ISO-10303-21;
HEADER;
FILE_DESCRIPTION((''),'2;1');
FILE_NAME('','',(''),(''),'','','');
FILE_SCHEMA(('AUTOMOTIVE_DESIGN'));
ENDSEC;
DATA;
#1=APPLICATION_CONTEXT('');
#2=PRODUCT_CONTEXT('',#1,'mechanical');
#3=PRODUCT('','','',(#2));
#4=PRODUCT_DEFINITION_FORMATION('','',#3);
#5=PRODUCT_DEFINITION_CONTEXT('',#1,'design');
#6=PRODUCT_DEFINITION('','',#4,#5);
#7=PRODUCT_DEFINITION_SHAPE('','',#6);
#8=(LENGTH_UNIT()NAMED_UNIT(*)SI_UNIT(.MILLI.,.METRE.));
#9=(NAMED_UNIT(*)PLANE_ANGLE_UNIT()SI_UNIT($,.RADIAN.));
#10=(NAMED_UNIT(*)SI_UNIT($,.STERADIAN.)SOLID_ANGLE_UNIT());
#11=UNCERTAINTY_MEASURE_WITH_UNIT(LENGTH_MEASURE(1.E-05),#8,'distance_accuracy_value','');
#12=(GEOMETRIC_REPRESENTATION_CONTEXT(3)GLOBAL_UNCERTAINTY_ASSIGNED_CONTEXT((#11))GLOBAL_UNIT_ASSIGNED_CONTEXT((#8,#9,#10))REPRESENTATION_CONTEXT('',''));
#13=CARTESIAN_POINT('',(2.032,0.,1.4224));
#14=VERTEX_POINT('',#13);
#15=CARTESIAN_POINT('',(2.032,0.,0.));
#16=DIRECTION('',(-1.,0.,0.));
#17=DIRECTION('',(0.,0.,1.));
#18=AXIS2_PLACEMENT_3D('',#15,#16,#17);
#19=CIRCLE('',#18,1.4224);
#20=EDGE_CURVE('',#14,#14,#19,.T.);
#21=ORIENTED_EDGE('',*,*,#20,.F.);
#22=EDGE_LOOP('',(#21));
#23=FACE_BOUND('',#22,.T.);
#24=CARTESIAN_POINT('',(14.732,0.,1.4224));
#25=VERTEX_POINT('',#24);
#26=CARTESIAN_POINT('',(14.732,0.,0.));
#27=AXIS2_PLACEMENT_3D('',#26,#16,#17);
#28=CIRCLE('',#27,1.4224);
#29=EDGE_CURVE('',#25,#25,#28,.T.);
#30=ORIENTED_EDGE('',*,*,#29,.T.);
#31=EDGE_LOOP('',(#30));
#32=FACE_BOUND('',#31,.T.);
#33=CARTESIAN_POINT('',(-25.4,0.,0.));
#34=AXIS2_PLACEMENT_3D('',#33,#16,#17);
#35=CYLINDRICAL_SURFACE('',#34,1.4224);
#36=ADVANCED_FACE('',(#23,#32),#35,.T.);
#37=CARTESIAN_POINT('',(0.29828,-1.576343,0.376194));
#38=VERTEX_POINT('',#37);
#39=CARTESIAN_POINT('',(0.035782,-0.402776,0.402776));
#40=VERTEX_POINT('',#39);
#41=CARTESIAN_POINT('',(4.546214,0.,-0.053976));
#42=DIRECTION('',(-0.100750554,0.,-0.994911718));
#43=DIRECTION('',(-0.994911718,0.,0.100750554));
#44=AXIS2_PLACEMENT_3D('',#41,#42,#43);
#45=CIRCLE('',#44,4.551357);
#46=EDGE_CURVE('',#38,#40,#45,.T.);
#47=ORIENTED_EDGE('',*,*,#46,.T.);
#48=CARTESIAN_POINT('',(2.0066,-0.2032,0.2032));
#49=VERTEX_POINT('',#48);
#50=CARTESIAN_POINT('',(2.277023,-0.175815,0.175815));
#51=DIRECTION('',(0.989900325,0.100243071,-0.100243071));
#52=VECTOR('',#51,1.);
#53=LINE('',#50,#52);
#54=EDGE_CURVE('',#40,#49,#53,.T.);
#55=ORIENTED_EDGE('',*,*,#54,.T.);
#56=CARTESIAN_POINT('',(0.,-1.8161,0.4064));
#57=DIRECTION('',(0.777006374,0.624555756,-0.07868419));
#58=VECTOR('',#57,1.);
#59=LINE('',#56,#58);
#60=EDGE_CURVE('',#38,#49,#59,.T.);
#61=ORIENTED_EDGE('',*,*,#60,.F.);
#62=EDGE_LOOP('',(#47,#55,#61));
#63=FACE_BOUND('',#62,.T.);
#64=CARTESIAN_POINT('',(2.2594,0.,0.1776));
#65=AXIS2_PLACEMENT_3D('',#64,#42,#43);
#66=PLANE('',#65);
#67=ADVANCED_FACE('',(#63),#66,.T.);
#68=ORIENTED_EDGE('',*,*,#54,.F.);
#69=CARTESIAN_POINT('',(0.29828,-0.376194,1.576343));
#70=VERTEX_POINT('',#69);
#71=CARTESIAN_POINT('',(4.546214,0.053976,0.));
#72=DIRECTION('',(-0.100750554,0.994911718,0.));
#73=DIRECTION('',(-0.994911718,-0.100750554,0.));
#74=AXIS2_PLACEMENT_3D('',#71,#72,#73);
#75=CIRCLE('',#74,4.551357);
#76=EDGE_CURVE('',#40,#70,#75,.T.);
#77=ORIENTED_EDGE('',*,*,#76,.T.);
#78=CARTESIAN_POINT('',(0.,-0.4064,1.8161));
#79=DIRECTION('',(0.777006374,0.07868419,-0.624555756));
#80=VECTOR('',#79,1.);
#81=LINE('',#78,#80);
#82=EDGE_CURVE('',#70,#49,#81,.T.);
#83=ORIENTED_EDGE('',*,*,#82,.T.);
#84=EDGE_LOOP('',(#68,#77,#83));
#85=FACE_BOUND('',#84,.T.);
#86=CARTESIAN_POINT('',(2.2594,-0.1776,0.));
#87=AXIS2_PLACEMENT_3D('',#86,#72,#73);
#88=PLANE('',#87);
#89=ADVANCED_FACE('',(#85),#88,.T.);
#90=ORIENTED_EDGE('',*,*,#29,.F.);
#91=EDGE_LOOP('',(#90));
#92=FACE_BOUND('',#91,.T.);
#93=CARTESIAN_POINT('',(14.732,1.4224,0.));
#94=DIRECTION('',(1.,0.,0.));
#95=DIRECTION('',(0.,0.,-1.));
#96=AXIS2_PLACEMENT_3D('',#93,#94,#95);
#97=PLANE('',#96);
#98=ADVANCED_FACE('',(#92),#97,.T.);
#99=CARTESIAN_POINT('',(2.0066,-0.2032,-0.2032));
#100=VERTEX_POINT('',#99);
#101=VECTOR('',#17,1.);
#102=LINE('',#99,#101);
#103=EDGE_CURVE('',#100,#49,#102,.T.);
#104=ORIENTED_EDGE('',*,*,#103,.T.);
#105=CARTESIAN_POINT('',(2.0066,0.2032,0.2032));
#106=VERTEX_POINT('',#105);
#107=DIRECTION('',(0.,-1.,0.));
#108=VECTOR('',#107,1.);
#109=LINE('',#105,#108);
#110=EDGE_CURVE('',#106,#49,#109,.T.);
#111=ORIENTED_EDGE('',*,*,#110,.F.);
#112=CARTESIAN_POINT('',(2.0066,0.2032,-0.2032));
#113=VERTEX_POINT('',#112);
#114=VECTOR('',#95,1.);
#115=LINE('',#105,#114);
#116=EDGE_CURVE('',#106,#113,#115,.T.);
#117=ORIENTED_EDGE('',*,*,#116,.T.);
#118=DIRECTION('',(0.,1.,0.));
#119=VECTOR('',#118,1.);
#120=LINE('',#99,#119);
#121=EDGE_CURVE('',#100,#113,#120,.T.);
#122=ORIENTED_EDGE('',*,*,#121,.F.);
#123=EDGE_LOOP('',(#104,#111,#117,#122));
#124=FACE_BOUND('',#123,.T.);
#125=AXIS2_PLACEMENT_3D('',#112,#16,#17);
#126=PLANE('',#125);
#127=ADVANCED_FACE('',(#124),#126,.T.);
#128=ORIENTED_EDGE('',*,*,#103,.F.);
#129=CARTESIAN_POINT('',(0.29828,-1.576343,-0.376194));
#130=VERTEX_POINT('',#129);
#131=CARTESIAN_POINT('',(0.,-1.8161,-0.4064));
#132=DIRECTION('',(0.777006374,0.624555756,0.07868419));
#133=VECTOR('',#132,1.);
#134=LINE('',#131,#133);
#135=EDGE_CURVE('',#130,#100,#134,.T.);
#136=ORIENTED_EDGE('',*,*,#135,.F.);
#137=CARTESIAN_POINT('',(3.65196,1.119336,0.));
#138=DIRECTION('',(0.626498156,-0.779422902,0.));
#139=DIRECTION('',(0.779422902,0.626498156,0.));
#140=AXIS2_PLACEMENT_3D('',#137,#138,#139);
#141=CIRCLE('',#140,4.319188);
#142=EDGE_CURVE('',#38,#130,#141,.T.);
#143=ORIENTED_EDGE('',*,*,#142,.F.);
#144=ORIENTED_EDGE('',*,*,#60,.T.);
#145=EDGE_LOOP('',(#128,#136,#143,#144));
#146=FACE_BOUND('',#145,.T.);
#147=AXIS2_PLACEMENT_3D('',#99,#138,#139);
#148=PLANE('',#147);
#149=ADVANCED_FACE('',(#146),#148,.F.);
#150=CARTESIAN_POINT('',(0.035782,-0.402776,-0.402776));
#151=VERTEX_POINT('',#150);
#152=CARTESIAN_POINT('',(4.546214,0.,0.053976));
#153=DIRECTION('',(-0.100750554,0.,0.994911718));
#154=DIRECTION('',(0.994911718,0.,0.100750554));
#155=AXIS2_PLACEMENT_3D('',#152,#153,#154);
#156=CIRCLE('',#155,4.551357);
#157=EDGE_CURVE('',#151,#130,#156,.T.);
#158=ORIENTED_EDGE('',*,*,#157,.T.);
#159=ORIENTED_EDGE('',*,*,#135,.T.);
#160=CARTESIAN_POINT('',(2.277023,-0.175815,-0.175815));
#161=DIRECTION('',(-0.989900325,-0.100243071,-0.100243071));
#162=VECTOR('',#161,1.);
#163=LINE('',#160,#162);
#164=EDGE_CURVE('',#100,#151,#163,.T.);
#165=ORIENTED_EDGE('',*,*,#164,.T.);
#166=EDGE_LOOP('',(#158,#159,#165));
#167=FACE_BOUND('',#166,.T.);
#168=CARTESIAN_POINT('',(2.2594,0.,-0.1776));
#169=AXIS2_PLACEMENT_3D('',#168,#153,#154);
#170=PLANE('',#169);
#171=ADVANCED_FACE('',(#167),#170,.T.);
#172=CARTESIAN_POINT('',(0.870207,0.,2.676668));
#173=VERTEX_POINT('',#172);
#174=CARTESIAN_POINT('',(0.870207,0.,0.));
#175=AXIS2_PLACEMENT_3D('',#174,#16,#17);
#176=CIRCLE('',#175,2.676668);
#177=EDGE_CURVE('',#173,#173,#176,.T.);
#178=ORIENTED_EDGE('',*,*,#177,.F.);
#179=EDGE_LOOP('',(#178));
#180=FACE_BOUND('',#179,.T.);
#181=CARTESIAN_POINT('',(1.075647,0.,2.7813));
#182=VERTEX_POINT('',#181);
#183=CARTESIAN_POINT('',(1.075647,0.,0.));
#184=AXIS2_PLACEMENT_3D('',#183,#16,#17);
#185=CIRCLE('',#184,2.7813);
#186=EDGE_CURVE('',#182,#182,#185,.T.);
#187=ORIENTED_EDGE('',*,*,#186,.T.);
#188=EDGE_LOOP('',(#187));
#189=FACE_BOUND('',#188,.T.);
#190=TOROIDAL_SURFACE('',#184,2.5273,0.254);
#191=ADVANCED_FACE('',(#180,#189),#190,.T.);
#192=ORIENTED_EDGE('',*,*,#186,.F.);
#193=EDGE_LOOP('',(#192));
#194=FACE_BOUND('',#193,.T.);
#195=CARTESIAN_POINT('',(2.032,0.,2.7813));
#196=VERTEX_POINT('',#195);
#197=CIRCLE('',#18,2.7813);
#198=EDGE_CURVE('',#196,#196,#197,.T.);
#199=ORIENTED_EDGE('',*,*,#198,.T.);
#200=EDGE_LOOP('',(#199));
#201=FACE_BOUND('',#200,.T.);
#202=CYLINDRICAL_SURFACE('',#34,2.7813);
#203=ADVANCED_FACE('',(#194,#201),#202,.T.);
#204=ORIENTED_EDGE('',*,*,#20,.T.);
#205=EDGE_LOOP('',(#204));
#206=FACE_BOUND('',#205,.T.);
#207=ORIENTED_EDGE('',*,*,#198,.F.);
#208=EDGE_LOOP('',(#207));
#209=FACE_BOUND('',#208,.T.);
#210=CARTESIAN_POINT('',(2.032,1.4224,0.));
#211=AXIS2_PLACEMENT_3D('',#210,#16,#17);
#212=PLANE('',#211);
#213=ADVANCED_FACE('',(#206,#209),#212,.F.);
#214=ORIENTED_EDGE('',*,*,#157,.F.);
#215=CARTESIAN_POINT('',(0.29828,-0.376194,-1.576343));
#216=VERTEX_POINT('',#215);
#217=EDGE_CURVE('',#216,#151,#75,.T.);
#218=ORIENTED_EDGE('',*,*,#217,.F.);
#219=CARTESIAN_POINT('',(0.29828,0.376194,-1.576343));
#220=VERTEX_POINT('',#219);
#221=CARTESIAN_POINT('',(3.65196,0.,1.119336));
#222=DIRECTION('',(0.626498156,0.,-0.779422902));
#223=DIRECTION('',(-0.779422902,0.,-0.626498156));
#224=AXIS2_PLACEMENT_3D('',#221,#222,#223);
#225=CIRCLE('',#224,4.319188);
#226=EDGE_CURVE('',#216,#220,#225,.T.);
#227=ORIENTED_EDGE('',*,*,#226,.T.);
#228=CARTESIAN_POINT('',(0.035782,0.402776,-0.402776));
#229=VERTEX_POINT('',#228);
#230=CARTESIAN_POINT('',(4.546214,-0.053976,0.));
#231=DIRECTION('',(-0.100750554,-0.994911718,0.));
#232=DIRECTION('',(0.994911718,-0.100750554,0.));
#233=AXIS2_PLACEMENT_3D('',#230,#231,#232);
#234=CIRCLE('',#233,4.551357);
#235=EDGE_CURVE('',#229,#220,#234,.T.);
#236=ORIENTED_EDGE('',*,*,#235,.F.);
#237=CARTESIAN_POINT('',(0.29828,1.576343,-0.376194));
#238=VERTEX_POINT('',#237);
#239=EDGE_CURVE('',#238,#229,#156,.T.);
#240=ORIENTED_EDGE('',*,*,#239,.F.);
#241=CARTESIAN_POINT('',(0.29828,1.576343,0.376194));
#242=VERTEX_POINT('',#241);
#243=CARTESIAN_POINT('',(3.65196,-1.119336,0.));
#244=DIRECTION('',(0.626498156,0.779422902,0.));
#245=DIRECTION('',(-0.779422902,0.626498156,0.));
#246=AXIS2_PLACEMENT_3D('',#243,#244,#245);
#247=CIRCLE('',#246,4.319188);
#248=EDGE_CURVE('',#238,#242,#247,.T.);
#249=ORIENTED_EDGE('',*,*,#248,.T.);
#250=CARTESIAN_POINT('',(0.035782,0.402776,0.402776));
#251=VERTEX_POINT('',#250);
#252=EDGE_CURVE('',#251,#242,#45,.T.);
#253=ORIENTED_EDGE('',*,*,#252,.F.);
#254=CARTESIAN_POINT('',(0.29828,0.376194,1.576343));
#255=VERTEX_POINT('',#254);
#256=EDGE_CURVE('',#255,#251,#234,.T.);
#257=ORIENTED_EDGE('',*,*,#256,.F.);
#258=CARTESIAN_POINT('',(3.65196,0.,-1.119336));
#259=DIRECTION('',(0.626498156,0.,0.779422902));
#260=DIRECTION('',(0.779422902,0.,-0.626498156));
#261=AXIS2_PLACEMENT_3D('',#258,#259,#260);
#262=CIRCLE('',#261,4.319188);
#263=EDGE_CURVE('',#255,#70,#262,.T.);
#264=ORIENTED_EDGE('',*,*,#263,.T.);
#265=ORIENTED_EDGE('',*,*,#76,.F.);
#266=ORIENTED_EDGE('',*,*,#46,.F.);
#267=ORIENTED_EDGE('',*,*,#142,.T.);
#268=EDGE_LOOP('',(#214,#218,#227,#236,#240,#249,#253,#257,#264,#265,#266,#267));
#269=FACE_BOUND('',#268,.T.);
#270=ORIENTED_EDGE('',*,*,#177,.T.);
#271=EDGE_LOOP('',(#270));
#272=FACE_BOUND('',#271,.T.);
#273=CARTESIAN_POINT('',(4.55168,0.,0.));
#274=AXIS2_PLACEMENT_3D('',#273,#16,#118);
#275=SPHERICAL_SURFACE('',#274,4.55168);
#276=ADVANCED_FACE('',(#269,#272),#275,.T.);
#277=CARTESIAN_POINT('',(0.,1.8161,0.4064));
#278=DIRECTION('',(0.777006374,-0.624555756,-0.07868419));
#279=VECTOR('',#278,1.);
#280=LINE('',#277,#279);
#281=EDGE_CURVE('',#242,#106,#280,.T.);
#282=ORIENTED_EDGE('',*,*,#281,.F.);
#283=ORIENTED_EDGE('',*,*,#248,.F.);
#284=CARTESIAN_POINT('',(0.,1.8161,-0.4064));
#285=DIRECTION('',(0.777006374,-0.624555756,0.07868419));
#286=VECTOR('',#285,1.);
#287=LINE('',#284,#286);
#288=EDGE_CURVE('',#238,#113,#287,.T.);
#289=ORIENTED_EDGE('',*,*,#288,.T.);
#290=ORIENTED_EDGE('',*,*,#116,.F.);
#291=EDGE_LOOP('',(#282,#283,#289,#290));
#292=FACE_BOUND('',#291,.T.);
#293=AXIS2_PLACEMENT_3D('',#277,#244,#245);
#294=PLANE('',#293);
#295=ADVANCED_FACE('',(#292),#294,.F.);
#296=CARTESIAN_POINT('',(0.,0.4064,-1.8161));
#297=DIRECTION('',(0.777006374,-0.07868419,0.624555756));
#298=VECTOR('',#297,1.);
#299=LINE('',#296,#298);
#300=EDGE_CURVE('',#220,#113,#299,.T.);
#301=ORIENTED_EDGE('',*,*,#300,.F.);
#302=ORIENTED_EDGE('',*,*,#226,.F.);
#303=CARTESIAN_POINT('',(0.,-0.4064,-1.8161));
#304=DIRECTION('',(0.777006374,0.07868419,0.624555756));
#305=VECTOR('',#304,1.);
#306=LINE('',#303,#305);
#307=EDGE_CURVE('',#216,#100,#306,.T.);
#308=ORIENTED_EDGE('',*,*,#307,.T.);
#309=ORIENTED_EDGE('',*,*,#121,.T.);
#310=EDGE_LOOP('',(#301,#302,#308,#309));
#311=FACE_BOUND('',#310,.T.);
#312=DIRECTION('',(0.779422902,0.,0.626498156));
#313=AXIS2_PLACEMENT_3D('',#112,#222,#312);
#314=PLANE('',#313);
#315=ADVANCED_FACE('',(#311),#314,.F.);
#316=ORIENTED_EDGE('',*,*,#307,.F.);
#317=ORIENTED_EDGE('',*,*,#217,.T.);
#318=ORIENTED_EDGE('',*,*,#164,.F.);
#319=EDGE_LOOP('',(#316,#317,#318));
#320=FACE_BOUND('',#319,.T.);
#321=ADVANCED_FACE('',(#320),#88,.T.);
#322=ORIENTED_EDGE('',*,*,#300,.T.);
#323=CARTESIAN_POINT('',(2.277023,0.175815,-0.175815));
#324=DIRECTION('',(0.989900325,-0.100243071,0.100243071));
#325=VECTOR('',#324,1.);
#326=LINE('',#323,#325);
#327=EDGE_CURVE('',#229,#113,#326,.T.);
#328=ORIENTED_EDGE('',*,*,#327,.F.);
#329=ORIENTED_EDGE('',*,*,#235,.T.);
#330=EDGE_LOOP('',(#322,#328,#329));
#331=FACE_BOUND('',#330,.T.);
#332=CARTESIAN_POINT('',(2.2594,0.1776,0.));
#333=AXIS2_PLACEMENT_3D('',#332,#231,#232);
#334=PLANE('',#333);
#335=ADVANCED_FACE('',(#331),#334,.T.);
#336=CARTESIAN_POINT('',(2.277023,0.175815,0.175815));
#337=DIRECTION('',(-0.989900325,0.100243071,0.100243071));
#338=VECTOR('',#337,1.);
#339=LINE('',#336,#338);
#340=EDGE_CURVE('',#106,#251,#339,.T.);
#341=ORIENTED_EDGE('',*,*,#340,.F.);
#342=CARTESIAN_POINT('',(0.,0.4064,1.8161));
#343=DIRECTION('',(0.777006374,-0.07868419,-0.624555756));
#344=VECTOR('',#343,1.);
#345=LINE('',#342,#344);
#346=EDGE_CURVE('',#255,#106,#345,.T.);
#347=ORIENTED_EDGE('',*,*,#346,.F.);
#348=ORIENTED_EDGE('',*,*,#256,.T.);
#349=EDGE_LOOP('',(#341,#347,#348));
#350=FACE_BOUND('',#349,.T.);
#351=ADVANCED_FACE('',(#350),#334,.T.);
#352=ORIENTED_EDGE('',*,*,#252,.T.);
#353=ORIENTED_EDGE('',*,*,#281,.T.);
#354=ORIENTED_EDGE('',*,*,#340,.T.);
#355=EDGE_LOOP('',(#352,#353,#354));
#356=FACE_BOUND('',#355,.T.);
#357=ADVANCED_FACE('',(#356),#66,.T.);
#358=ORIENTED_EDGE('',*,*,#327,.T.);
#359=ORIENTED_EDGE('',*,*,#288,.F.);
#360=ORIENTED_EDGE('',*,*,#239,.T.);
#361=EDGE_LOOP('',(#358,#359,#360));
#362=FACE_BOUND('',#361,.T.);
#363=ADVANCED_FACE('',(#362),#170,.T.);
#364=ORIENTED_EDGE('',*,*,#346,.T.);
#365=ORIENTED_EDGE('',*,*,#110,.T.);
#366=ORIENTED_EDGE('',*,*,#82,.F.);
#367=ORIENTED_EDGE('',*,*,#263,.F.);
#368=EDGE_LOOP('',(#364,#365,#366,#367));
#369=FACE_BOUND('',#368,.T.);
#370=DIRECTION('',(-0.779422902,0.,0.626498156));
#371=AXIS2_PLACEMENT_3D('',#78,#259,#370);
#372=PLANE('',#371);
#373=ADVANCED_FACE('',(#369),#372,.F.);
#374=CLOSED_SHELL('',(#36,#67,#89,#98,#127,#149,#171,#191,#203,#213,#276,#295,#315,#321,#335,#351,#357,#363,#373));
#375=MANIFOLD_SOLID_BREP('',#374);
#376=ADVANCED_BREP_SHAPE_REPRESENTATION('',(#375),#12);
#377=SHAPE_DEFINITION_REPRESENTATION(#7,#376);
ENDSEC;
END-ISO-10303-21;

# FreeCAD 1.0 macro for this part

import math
import FreeCAD as App
import Part
import Sketcher
from FreeCAD import Vector
Q = App.Units.Quantity

doc = App.newDocument("Part")
body = doc.addObject("PartDesign::Body", "Body")

sketch1 = body.newObject("Sketcher::SketchObject", "Sketch")
sketch1.AttachmentSupport = (doc.getObject("XY_Plane"), [""])
sketch1.MapMode = "FlatFace"
sketch1.addGeometry([
    Part.LineSegment(Vector(2.032, 1.4224, 0), Vector(2.032, 2.7813, 0)),
    Part.LineSegment(Vector(2.032, 2.7813, 0), Vector(1.075647, 2.7813, 0)),
    Part.ArcOfCircle(Part.Circle(Vector(1.075647, 2.5273, 0), Vector(0, 0, 1), 0.254), math.radians(90), math.radians(143.980436)),
    Part.ArcOfCircle(Part.Circle(Vector(4.55168, 0, 0), Vector(0, 0, 1), 4.55168), math.radians(143.980436), math.radians(180)),
    Part.LineSegment(Vector(0, 0, 0), Vector(14.732, 0, 0)),
    Part.LineSegment(Vector(14.732, 0, 0), Vector(14.732, 1.4224, 0)),
    Part.LineSegment(Vector(14.732, 1.4224, 0), Vector(2.032, 1.4224, 0)),
], False)
sketch1.addConstraint([
    Sketcher.Constraint("Coincident", 0, 2, 1, 1),
    Sketcher.Constraint("Tangent", 1, 2, 2, 1),
    Sketcher.Constraint("Tangent", 2, 2, 3, 1),
    Sketcher.Constraint("Coincident", 3, 2, 4, 1),
    Sketcher.Constraint("Coincident", 4, 2, 5, 1),
    Sketcher.Constraint("Coincident", 5, 2, 6, 1),
    Sketcher.Constraint("Coincident", 6, 2, 0, 1),
    Sketcher.Constraint("Vertical", 0),
    Sketcher.Constraint("Horizontal", 1),
    Sketcher.Constraint("Horizontal", 4),
    Sketcher.Constraint("Vertical", 5),
    Sketcher.Constraint("Horizontal", 6),
    Sketcher.Constraint("Coincident", 3, 2, -1, 1),
    Sketcher.Constraint("PointOnObject", 3, 3, -1),
    Sketcher.Constraint("Radius", 2, Q("0.01 in")),
    Sketcher.Constraint("DistanceX", 6, 2, 6, 1, Q("0.5 in")),
    Sketcher.Constraint("DistanceX", 4, 1, 4, 2, Q("0.58 in")),
    Sketcher.Constraint("Radius", 3, Q("0.1792 in")),
    Sketcher.Constraint("DistanceY", 5, 1, 5, 2, Q("0.056 in")),
    Sketcher.Constraint("DistanceY", 0, 1, 0, 2, Q("0.0535 in")),
])
revolution = body.newObject("PartDesign::Revolution", "Revolution")
revolution.Profile = sketch1
revolution.ReferenceAxis = (sketch1, ["H_Axis"])
revolution.Angle = 360

sketch2 = body.newObject("Sketcher::SketchObject", "Sketch001")
sketch2.AttachmentSupport = (doc.getObject("YZ_Plane"), [""])
sketch2.MapMode = "FlatFace"
sketch2.addGeometry([
    Part.LineSegment(Vector(1.8161, 0.4064, 0), Vector(-1.8161, 0.4064, 0)),
    Part.LineSegment(Vector(-1.8161, 0.4064, 0), Vector(-1.8161, -0.4064, 0)),
    Part.LineSegment(Vector(-1.8161, -0.4064, 0), Vector(1.8161, -0.4064, 0)),
    Part.LineSegment(Vector(1.8161, -0.4064, 0), Vector(1.8161, 0.4064, 0)),
], False)
sketch2.addConstraint([
    Sketcher.Constraint("Coincident", 0, 2, 1, 1),
    Sketcher.Constraint("Coincident", 1, 2, 2, 1),
    Sketcher.Constraint("Coincident", 2, 2, 3, 1),
    Sketcher.Constraint("Coincident", 3, 2, 0, 1),
    Sketcher.Constraint("Horizontal", 0),
    Sketcher.Constraint("Vertical", 1),
    Sketcher.Constraint("Horizontal", 2),
    Sketcher.Constraint("Vertical", 3),
    Sketcher.Constraint("Symmetric", 0, 2, 2, 2, -1, 1),
    Sketcher.Constraint("DistanceX", 0, 2, 0, 1, Q("0.143 in")),
    Sketcher.Constraint("DistanceY", 1, 2, 1, 1, Q("0.032 in")),
])

sketch3 = body.newObject("Sketcher::SketchObject", "Sketch002")
sketch3.AttachmentSupport = (doc.getObject("YZ_Plane"), [""])
sketch3.MapMode = "FlatFace"
sketch3.AttachmentOffset = App.Placement(Vector(0, 0, 0.079 * 25.4), App.Rotation())
sketch3.addGeometry([
    Part.LineSegment(Vector(0.2032, 0.2032, 0), Vector(-0.2032, 0.2032, 0)),
    Part.LineSegment(Vector(-0.2032, 0.2032, 0), Vector(-0.2032, -0.2032, 0)),
    Part.LineSegment(Vector(-0.2032, -0.2032, 0), Vector(0.2032, -0.2032, 0)),
    Part.LineSegment(Vector(0.2032, -0.2032, 0), Vector(0.2032, 0.2032, 0)),
], False)
sketch3.addConstraint([
    Sketcher.Constraint("Coincident", 0, 2, 1, 1),
    Sketcher.Constraint("Coincident", 1, 2, 2, 1),
    Sketcher.Constraint("Coincident", 2, 2, 3, 1),
    Sketcher.Constraint("Coincident", 3, 2, 0, 1),
    Sketcher.Constraint("Horizontal", 0),
    Sketcher.Constraint("Vertical", 1),
    Sketcher.Constraint("Horizontal", 2),
    Sketcher.Constraint("Vertical", 3),
    Sketcher.Constraint("Symmetric", 0, 2, 2, 2, -1, 1),
    Sketcher.Constraint("Equal", 2, 1),
    Sketcher.Constraint("DistanceX", 0, 2, 0, 1, Q("0.016 in")),
])

subtractiveloft = body.newObject("PartDesign::SubtractiveLoft", "SubtractiveLoft")
subtractiveloft.Profile = sketch2
subtractiveloft.Sections = [sketch3]
doc.recompute()

polarpattern = body.newObject("PartDesign::PolarPattern", "PolarPattern")
polarpattern.Originals = [subtractiveloft]
polarpattern.Axis = (doc.getObject("X_Axis"), [""])
polarpattern.Angle = 90
polarpattern.Occurrences = 2
body.Tip = polarpattern

doc.recompute()
